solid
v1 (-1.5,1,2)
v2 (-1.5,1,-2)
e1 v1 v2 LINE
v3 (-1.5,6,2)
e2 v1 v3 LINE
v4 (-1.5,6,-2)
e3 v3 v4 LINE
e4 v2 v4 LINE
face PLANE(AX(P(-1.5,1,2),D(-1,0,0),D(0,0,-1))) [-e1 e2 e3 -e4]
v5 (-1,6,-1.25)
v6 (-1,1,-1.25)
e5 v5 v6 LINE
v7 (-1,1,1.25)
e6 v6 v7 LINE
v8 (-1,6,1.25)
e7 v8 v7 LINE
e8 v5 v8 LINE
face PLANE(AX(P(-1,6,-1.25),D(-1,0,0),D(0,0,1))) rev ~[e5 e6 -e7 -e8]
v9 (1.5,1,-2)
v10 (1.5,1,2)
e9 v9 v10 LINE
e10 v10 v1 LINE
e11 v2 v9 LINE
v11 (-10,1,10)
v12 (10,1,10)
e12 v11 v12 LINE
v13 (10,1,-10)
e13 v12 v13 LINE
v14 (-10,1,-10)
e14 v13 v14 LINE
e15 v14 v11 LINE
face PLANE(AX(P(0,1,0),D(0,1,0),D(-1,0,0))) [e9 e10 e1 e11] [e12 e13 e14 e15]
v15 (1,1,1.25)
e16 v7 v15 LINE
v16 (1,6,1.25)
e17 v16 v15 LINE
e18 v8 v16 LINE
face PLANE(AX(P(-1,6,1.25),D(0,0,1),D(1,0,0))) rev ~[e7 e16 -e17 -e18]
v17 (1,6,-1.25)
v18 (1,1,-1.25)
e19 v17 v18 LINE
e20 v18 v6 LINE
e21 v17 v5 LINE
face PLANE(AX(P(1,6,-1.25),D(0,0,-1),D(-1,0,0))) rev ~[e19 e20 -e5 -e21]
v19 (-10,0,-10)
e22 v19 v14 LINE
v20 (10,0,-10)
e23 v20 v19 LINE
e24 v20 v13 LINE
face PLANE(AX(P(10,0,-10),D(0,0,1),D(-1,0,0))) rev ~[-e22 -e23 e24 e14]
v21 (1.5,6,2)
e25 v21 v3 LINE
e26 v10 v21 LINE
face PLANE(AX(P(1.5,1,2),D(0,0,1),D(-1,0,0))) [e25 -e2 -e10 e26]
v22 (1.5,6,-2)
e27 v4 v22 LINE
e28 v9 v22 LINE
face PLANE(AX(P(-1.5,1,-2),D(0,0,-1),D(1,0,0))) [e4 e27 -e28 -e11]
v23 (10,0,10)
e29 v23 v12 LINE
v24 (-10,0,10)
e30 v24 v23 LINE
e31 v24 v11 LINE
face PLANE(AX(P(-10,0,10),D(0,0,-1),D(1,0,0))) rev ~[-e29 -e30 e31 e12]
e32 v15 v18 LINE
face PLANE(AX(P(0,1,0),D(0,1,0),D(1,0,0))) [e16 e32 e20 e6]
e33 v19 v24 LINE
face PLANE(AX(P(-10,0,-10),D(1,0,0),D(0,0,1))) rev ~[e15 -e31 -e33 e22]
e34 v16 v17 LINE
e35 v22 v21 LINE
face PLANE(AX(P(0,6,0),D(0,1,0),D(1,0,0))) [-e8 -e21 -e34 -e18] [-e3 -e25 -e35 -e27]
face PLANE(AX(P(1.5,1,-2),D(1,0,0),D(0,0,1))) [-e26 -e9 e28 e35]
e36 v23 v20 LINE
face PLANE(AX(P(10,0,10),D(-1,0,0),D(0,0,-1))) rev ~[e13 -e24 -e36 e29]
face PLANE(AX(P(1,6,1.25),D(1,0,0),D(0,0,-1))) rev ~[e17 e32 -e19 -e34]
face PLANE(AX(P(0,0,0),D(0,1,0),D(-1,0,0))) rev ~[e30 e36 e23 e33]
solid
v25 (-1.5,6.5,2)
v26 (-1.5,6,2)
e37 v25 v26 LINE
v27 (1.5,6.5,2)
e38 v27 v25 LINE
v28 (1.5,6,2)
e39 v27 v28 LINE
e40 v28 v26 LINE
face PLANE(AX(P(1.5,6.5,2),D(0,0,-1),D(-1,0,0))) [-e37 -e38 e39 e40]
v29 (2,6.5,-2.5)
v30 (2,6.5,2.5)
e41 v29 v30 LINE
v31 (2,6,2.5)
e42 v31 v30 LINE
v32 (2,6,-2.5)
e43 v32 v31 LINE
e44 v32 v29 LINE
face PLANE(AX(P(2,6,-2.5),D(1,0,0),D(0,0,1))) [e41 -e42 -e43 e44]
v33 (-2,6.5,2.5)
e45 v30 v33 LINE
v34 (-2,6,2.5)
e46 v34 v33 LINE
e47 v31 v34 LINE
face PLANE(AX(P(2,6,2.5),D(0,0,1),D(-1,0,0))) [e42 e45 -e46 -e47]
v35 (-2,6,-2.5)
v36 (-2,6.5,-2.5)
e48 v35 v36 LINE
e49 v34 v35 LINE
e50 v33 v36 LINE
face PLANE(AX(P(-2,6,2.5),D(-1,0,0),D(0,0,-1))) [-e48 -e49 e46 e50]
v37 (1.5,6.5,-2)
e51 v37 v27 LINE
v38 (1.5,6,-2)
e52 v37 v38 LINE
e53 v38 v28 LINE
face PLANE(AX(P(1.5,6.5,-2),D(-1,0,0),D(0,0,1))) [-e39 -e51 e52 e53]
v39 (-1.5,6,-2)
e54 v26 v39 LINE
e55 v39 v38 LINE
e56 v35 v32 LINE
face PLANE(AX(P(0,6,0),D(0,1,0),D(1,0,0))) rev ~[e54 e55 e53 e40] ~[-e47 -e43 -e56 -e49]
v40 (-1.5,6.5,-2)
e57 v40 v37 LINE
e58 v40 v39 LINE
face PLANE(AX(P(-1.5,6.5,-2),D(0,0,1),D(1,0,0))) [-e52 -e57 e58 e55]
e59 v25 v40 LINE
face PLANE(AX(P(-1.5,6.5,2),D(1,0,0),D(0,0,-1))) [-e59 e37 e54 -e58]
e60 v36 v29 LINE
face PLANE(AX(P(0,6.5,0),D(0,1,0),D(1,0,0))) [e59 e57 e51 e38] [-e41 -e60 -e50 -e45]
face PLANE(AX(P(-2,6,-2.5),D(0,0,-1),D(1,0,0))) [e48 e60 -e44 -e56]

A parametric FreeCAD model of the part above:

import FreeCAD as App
import Part
import Sketcher
from FreeCAD import Vector

doc = App.newDocument("Part")
body = doc.addObject("PartDesign::Body", "Body")
body.AllowCompound = True

sketch1 = doc.addObject("Sketcher::SketchObject", "Sketch")
body.addObject(sketch1)
sketch1.AttachmentSupport = (doc.XZ_Plane, [""])
sketch1.MapMode = "FlatFace"
sketch1.addGeometry([
    Part.LineSegment(Vector(-10, -10, 0), Vector(-10, 10, 0)),
    Part.LineSegment(Vector(-10, 10, 0), Vector(10, 10, 0)),
    Part.LineSegment(Vector(10, 10, 0), Vector(10, -10, 0)),
    Part.LineSegment(Vector(10, -10, 0), Vector(-10, -10, 0)),
], False)
sketch1.addConstraint([
    Sketcher.Constraint("Coincident", 0, 2, 1, 1),
    Sketcher.Constraint("Coincident", 1, 2, 2, 1),
    Sketcher.Constraint("Coincident", 2, 2, 3, 1),
    Sketcher.Constraint("Coincident", 3, 2, 0, 1),
    Sketcher.Constraint("Vertical", 0),
    Sketcher.Constraint("Horizontal", 1),
    Sketcher.Constraint("Vertical", 2),
    Sketcher.Constraint("Horizontal", 3),
    Sketcher.Constraint("Symmetric", 0, 2, 2, 2, -1, 1),
    Sketcher.Constraint("Equal", 3, 0),
    Sketcher.Constraint("DistanceX", 1, 1, 1, 2, 20.0),
])
pad1 = doc.addObject("PartDesign::Pad", "Pad")
body.addObject(pad1)
pad1.Profile = sketch1
pad1.Length = 1
pad1.Reversed = True

sketch2 = doc.addObject("Sketcher::SketchObject", "Sketch001")
body.addObject(sketch2)
sketch2.AttachmentSupport = (doc.XZ_Plane, [""])
sketch2.MapMode = "FlatFace"
sketch2.AttachmentOffset = App.Placement(Vector(0, 0, -1), App.Rotation())
sketch2.addGeometry([
    Part.LineSegment(Vector(1.5, -2, 0), Vector(-1.5, -2, 0)),
    Part.LineSegment(Vector(-1.5, -2, 0), Vector(-1.5, 2, 0)),
    Part.LineSegment(Vector(-1.5, 2, 0), Vector(1.5, 2, 0)),
    Part.LineSegment(Vector(1.5, 2, 0), Vector(1.5, -2, 0)),
], False)
sketch2.addConstraint([
    Sketcher.Constraint("Coincident", 0, 2, 1, 1),
    Sketcher.Constraint("Coincident", 1, 2, 2, 1),
    Sketcher.Constraint("Coincident", 2, 2, 3, 1),
    Sketcher.Constraint("Coincident", 3, 2, 0, 1),
    Sketcher.Constraint("Horizontal", 0),
    Sketcher.Constraint("Vertical", 1),
    Sketcher.Constraint("Horizontal", 2),
    Sketcher.Constraint("Vertical", 3),
    Sketcher.Constraint("Symmetric", 0, 2, 2, 2, -1, 1),
    Sketcher.Constraint("DistanceX", 0, 2, 0, 1, 3.0),
    Sketcher.Constraint("DistanceY", 1, 1, 1, 2, 4.0),
])
pad2 = doc.addObject("PartDesign::Pad", "Pad001")
body.addObject(pad2)
pad2.Profile = sketch2
pad2.Length = 5
pad2.Reversed = True

sketch3 = doc.addObject("Sketcher::SketchObject", "Sketch002")
body.addObject(sketch3)
sketch3.AttachmentSupport = (doc.XZ_Plane, [""])
sketch3.MapMode = "FlatFace"
sketch3.AttachmentOffset = App.Placement(Vector(0, 0, -6), App.Rotation())
sketch3.addGeometry([
    Part.LineSegment(Vector(-1, -1.2, 0), Vector(-1, 1.2, 0)),
    Part.LineSegment(Vector(-1, 1.2, 0), Vector(1, 1.2, 0)),
    Part.LineSegment(Vector(1, 1.2, 0), Vector(1, -1.2, 0)),
    Part.LineSegment(Vector(1, -1.2, 0), Vector(-1, -1.2, 0)),
], False)
sketch3.addConstraint([
    Sketcher.Constraint("Coincident", 0, 2, 1, 1),
    Sketcher.Constraint("Coincident", 1, 2, 2, 1),
    Sketcher.Constraint("Coincident", 2, 2, 3, 1),
    Sketcher.Constraint("Coincident", 3, 2, 0, 1),
    Sketcher.Constraint("Vertical", 0),
    Sketcher.Constraint("Horizontal", 1),
    Sketcher.Constraint("Vertical", 2),
    Sketcher.Constraint("Horizontal", 3),
    Sketcher.Constraint("Symmetric", 0, 2, 2, 2, -1, 1),
    Sketcher.Constraint("DistanceX", 1, 1, 1, 2, 2.0),
    Sketcher.Constraint("DistanceY", 0, 1, 0, 2, 2.5),
])
pocket1 = doc.addObject("PartDesign::Pocket", "Pocket")
body.addObject(pocket1)
pocket1.Profile = sketch3
pocket1.Length = 5
pocket1.Reversed = True

sketch4 = doc.addObject("Sketcher::SketchObject", "Sketch003")
body.addObject(sketch4)
sketch4.AttachmentSupport = (doc.XZ_Plane, [""])
sketch4.MapMode = "FlatFace"
sketch4.AttachmentOffset = App.Placement(Vector(0, 0, -6), App.Rotation())
sketch4.addGeometry([
    Part.LineSegment(Vector(2, -2.5, 0), Vector(-2, -2.5, 0)),
    Part.LineSegment(Vector(-2, -2.5, 0), Vector(-2, 2.5, 0)),
    Part.LineSegment(Vector(-2, 2.5, 0), Vector(2, 2.5, 0)),
    Part.LineSegment(Vector(2, 2.5, 0), Vector(2, -2.5, 0)),
], False)
sketch4.addConstraint([
    Sketcher.Constraint("Coincident", 0, 2, 1, 1),
    Sketcher.Constraint("Coincident", 1, 2, 2, 1),
    Sketcher.Constraint("Coincident", 2, 2, 3, 1),
    Sketcher.Constraint("Coincident", 3, 2, 0, 1),
    Sketcher.Constraint("Horizontal", 0),
    Sketcher.Constraint("Vertical", 1),
    Sketcher.Constraint("Horizontal", 2),
    Sketcher.Constraint("Vertical", 3),
    Sketcher.Constraint("Symmetric", 0, 2, 2, 2, -1, 1),
    Sketcher.Constraint("DistanceX", 0, 2, 0, 1, 4.0),
    Sketcher.Constraint("DistanceY", 1, 1, 1, 2, 5.0),
])
pad3 = doc.addObject("PartDesign::Pad", "Pad002")
body.addObject(pad3)
pad3.Profile = sketch4
pad3.Length = 0.5
pad3.Reversed = True

sketch5 = doc.addObject("Sketcher::SketchObject", "Sketch004")
body.addObject(sketch5)
sketch5.AttachmentSupport = (doc.XZ_Plane, [""])
sketch5.MapMode = "FlatFace"
sketch5.AttachmentOffset = App.Placement(Vector(0, 0, -6.5), App.Rotation())
sketch5.addGeometry([
    Part.LineSegment(Vector(1.5, 2, 0), Vector(1.5, -2, 0)),
    Part.LineSegment(Vector(1.5, -2, 0), Vector(-1.5, -2, 0)),
    Part.LineSegment(Vector(-1.5, -2, 0), Vector(-1.5, 2, 0)),
    Part.LineSegment(Vector(-1.5, 2, 0), Vector(1.5, 2, 0)),
], False)
sketch5.addConstraint([
    Sketcher.Constraint("Coincident", 0, 2, 1, 1),
    Sketcher.Constraint("Coincident", 1, 2, 2, 1),
    Sketcher.Constraint("Coincident", 2, 2, 3, 1),
    Sketcher.Constraint("Coincident", 3, 2, 0, 1),
    Sketcher.Constraint("Vertical", 0),
    Sketcher.Constraint("Horizontal", 1),
    Sketcher.Constraint("Vertical", 2),
    Sketcher.Constraint("Horizontal", 3),
    Sketcher.Constraint("Symmetric", 0, 2, 2, 2, -1, 1),
    Sketcher.Constraint("DistanceX", 1, 2, 1, 1, 3.0),
    Sketcher.Constraint("DistanceY", 0, 2, 0, 1, 4.0),
])
pocket2 = doc.addObject("PartDesign::Pocket", "Pocket001")
body.addObject(pocket2)
pocket2.Profile = sketch5
pocket2.Length = 0.5
pocket2.Reversed = True

doc.recompute()
